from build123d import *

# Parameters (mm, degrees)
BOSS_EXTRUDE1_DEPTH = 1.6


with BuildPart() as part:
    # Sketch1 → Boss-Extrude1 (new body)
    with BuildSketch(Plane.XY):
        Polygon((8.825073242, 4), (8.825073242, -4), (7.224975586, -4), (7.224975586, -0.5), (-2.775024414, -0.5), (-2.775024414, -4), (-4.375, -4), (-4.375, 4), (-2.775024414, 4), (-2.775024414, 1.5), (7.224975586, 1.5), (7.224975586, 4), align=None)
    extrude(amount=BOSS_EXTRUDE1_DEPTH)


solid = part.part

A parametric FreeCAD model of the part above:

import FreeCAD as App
import Part
import Sketcher
Q = App.Units.Quantity


def add_polygon(sketch, points):
    """Adds a closed chain of lines whose ends are joined by coincident constraints."""
    first, n = sketch.GeometryCount, len(points)
    for a, b in zip(points, points[1:] + points[:1]):
        sketch.addGeometry(Part.LineSegment(App.Vector(*a, 0), App.Vector(*b, 0)), False)
    for i in range(n):
        sketch.addConstraint(Sketcher.Constraint("Coincident", first + i, 2, first + (i + 1) % n, 1))

doc = App.newDocument("Part")
body = doc.addObject("PartDesign::Body", "Body")

# Sketch on XY plane
sketch1 = doc.addObject("Sketcher::SketchObject", "Sketch")
body.addObject(sketch1)
sketch1.AttachmentSupport = (doc.XY_Plane, [""])
sketch1.MapMode = "FlatFace"
add_polygon(sketch1, [(8.825073, -4), (8.825073, 4), (7.224976, 4), (7.224976, 1.5), (-2.775024, 1.5), (-2.775024, 4), (-4.375, 4), (-4.375, -4), (-2.775024, -4), (-2.775024, -0.5), (7.224976, -0.5), (7.224976, -4)])  # lines 0-11
sketch1.addConstraint([
    Sketcher.Constraint("Vertical", 0),
    Sketcher.Constraint("Horizontal", 1),
    Sketcher.Constraint("Vertical", 2),
    Sketcher.Constraint("Horizontal", 3),
    Sketcher.Constraint("Vertical", 4),
    Sketcher.Constraint("Horizontal", 5),
    Sketcher.Constraint("Vertical", 6),
    Sketcher.Constraint("Horizontal", 7),
    Sketcher.Constraint("Vertical", 8),
    Sketcher.Constraint("Horizontal", 9),
    Sketcher.Constraint("Vertical", 10),
    Sketcher.Constraint("Horizontal", 11),
    Sketcher.Constraint("Symmetric", 4, 2, 7, 2, -1),
    Sketcher.Constraint("Symmetric", 1, 2, 10, 2, -1),
    Sketcher.Constraint("Horizontal", 1, 2, 4, 2),
    Sketcher.Constraint("DistanceX", 3, 2, 3, 1, Q("10 mm")),
    Sketcher.Constraint("DistanceY", 0, 1, 0, 2, Q("8 mm")),
    Sketcher.Constraint("DistanceY", 2, 2, 2, 1, Q("2.5 mm")),
    Sketcher.Constraint("DistanceY", 8, 1, 8, 2, Q("3.5 mm")),
    Sketcher.Constraint("DistanceX", 5, 2, -1, 1, Q("4.375 mm")),
    Sketcher.Constraint("DistanceX", 1, 2, 1, 1, Q("1.600098 mm")),
    Sketcher.Constraint("DistanceX", 5, 2, 5, 1, Q("1.599976 mm")),
])
pad1 = doc.addObject("PartDesign::Pad", "Pad")
body.addObject(pad1)
pad1.Profile = sketch1
pad1.Length = 1.6

doc.recompute()
